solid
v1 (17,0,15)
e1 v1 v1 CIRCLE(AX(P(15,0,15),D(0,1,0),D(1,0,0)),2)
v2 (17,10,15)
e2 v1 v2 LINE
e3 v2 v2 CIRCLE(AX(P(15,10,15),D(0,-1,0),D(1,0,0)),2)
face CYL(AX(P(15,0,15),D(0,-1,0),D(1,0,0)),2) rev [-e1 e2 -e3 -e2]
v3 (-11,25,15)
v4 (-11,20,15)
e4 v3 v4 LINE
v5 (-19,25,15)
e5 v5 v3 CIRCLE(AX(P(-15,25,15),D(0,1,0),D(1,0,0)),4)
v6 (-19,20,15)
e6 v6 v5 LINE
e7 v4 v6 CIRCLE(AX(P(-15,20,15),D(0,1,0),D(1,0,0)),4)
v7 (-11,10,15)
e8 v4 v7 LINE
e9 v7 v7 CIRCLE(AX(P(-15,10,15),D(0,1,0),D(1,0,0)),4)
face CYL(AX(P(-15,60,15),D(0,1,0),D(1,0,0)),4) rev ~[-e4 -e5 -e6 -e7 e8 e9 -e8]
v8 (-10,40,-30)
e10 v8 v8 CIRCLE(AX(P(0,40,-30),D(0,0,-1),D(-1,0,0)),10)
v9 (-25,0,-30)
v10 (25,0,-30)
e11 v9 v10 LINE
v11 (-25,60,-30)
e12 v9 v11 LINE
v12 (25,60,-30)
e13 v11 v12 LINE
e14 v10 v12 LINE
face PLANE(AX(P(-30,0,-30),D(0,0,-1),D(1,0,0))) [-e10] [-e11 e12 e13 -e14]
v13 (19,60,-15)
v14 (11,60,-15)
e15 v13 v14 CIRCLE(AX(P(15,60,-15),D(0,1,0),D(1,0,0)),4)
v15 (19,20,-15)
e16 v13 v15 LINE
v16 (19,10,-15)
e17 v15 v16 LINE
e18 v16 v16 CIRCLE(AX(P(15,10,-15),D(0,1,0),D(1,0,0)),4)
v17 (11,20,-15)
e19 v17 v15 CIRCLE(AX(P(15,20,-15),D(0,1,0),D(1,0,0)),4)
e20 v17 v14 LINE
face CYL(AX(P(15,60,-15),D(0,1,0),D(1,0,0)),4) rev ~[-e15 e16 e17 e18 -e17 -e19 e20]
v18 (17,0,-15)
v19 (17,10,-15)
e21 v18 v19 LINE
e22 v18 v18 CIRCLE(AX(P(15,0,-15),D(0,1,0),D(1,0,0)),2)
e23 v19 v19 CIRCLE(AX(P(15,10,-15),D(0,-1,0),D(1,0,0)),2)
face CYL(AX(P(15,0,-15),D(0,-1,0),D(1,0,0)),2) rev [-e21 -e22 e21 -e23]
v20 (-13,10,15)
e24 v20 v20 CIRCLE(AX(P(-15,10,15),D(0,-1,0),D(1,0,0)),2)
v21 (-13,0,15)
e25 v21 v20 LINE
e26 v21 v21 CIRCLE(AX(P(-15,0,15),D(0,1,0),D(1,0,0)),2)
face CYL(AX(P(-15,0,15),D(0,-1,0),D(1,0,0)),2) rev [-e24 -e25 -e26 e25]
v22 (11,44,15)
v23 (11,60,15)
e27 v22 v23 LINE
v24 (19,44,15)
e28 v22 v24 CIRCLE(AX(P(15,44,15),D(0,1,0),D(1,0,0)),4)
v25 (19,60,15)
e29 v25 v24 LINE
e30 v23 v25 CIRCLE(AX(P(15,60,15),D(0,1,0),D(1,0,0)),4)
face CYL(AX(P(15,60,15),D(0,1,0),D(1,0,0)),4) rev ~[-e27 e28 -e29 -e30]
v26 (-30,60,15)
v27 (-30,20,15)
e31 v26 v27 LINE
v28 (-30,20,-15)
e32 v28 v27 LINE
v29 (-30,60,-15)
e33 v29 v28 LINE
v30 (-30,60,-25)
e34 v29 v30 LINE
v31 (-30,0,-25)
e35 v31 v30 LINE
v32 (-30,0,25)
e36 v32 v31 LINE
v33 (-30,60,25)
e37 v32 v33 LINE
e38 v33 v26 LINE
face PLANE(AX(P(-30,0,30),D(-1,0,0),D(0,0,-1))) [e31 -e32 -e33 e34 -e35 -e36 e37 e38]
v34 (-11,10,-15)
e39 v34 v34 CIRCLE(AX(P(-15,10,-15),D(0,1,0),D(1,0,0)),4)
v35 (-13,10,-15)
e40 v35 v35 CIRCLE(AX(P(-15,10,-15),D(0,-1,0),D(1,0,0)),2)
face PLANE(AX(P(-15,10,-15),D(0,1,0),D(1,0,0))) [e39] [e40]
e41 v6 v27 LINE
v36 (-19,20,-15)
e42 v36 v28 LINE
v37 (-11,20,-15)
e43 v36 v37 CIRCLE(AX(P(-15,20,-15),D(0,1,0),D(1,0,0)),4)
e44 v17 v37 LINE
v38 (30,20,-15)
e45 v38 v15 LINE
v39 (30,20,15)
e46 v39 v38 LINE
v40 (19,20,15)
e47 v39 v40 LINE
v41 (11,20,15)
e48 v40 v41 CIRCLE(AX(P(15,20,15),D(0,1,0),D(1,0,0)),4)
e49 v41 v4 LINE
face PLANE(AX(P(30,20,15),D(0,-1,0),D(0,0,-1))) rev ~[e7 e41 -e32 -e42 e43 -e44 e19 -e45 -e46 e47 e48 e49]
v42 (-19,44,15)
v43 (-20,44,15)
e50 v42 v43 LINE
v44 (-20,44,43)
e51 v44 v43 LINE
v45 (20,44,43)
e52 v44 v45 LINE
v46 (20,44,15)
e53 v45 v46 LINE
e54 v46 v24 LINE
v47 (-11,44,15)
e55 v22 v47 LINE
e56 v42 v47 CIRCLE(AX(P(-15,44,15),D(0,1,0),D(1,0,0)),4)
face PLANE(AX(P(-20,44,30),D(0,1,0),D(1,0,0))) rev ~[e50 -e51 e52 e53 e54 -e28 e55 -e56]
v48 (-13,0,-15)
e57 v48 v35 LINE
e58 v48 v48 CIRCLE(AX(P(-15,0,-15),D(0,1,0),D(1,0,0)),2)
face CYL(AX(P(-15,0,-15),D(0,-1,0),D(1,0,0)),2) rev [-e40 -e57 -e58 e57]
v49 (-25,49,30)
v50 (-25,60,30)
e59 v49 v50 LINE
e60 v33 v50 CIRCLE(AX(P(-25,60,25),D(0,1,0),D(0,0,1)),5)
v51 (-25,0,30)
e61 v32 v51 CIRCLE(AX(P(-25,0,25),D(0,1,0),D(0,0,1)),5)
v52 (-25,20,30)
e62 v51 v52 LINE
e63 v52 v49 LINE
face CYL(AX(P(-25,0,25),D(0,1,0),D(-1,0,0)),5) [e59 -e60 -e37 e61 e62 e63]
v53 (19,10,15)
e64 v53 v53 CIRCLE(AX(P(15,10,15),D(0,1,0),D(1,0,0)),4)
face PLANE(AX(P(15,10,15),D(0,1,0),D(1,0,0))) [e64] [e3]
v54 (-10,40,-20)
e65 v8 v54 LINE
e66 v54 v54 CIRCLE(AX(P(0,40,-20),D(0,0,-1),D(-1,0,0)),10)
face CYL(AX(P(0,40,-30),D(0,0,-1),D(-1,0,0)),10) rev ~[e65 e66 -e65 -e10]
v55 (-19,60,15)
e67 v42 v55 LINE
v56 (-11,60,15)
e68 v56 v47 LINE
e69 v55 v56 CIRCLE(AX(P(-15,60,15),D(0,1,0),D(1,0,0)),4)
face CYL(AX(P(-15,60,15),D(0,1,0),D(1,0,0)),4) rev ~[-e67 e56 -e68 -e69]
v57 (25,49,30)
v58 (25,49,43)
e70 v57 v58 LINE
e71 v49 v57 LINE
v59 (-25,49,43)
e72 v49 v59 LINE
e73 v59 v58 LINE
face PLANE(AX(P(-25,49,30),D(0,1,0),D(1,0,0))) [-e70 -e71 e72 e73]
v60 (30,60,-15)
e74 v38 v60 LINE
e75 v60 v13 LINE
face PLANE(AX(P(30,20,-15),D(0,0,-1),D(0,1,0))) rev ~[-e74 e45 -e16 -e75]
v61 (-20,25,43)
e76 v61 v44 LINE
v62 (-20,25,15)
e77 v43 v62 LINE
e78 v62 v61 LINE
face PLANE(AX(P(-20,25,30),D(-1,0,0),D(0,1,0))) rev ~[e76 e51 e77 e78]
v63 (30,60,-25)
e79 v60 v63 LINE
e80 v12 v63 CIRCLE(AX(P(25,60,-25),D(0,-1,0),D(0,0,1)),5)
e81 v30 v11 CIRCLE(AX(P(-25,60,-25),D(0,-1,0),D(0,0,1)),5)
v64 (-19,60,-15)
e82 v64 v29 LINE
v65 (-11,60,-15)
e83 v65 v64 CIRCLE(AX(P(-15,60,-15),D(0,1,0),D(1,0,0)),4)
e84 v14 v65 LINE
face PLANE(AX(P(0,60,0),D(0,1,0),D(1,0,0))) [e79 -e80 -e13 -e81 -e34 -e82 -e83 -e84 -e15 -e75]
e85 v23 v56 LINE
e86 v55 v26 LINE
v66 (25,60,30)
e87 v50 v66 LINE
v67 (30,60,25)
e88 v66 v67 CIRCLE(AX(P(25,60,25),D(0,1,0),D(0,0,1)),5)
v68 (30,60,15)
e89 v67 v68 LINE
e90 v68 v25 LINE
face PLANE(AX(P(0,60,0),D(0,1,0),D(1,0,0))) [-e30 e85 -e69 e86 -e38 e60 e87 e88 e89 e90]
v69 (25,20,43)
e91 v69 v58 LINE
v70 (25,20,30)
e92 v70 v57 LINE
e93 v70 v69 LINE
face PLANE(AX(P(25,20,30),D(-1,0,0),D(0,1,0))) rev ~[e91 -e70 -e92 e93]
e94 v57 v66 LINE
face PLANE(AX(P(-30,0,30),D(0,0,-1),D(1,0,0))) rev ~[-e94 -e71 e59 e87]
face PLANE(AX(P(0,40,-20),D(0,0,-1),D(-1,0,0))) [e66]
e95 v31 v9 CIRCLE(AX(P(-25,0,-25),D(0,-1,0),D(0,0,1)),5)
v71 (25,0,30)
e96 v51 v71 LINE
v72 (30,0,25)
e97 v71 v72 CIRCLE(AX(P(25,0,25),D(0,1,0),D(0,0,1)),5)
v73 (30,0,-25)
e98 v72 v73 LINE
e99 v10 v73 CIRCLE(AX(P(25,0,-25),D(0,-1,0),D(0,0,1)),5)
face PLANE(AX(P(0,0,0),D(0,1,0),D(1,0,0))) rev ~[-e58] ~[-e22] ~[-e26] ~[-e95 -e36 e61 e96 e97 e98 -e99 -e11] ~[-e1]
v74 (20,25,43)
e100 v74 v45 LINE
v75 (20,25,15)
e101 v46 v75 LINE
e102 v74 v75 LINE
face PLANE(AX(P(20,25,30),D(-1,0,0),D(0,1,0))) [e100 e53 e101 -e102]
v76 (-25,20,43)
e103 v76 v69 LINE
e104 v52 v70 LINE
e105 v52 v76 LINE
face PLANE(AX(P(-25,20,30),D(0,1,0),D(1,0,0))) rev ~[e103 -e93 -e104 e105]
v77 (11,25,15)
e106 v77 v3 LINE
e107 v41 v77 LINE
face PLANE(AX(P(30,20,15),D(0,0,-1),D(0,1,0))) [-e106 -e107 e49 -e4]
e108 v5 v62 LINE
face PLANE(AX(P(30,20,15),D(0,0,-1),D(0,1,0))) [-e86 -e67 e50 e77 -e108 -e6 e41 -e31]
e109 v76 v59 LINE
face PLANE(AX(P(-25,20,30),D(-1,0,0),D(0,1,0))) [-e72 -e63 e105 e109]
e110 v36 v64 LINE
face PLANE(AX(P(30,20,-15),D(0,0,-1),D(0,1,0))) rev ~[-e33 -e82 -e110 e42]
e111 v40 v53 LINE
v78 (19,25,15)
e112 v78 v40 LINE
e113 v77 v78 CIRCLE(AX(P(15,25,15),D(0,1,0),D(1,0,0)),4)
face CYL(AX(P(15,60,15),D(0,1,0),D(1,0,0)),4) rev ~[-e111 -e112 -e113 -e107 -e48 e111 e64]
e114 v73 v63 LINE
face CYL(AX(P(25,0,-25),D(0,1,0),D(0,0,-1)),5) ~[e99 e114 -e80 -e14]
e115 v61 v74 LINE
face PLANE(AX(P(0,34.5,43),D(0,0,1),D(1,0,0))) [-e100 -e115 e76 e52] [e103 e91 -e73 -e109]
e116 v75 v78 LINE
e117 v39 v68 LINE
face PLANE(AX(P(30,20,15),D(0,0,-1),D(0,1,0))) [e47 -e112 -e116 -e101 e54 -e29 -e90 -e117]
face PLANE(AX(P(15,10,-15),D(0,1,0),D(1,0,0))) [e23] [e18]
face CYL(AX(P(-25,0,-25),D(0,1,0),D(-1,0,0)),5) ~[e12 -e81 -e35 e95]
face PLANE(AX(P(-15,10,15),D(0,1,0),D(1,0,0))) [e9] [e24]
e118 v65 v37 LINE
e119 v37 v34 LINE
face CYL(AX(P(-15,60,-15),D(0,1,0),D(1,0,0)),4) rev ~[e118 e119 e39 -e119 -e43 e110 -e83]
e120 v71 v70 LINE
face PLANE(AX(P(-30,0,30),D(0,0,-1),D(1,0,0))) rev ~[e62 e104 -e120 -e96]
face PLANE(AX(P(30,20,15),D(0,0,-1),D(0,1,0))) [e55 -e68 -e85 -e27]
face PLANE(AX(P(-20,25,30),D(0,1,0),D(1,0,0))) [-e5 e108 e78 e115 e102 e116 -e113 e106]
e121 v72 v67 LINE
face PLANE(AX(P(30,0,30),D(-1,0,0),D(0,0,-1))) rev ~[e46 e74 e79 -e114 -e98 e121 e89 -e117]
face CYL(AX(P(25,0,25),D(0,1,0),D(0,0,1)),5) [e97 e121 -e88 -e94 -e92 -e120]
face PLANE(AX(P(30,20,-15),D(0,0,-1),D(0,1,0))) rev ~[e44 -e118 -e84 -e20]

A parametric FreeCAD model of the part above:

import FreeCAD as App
import Part
import Sketcher

V = App.Vector
Q = App.Units.Quantity


def edges_at(feature, points):
    """Names of the edges that pass closest to the given points."""
    edges = feature.Shape.Edges
    near = lambda p: min(range(len(edges)), key=lambda i: edges[i].distToShape(Part.Vertex(*p))[0])
    return sorted({f"Edge{near(p) + 1}" for p in points})

doc = App.newDocument("Part")
body = doc.addObject("PartDesign::Body", "Body")

# Sketch on XZ plane
sketch1 = body.newObject("Sketcher::SketchObject", "Sketch")
sketch1.AttachmentSupport = (doc.getObject("XZ_Plane"), [""])
sketch1.MapMode = "FlatFace"
sketch1.addGeometry([
    Part.LineSegment(V(-30, -30, 0), V(-30, 30, 0)),  # 0
    Part.LineSegment(V(-30, 30, 0), V(30, 30, 0)),  # 1
    Part.LineSegment(V(30, 30, 0), V(30, -30, 0)),  # 2
    Part.LineSegment(V(30, -30, 0), V(-30, -30, 0)),  # 3
    Part.Circle(V(-15, 15, 0), V(0, 0, 1), 2),  # 4
    Part.Circle(V(15, 15, 0), V(0, 0, 1), 2),  # 5
    Part.Circle(V(-15, -15, 0), V(0, 0, 1), 2),  # 6
    Part.Circle(V(15, -15, 0), V(0, 0, 1), 2),  # 7
], False)
sketch1.addConstraint([
    Sketcher.Constraint("Coincident", 0, 2, 1, 1),
    Sketcher.Constraint("Coincident", 1, 2, 2, 1),
    Sketcher.Constraint("Coincident", 2, 2, 3, 1),
    Sketcher.Constraint("Coincident", 3, 2, 0, 1),
    Sketcher.Constraint("Vertical", 0),
    Sketcher.Constraint("Horizontal", 1),
    Sketcher.Constraint("Vertical", 2),
    Sketcher.Constraint("Horizontal", 3),
    Sketcher.Constraint("Equal", 4, 5),
    Sketcher.Constraint("Equal", 5, 6),
    Sketcher.Constraint("Equal", 6, 7),
    Sketcher.Constraint("Symmetric", 5, 3, 6, 3, -1, 1),
    Sketcher.Constraint("Symmetric", 4, 3, 7, 3, -1, 1),
    Sketcher.Constraint("Symmetric", 0, 2, 2, 2, -1, 1),
    Sketcher.Constraint("Symmetric", 4, 3, 5, 3, -2),
    Sketcher.Constraint("Equal", 3, 0),
    Sketcher.Constraint("Diameter", 4, Q("4 mm")),
    Sketcher.Constraint("DistanceX", 1, 1, 1, 2, Q("60 mm")),
    Sketcher.Constraint("DistanceX", 4, 3, -1, 1, Q("15 mm")),
    Sketcher.Constraint("DistanceY", -1, 1, 4, 3, Q("15 mm")),
])
pad1 = body.newObject("PartDesign::Pad", "Pad")
pad1.Profile = sketch1
pad1.Length = 60
pad1.Reversed = True

# Sketch on XZ plane
sketch2 = body.newObject("Sketcher::SketchObject", "Sketch001")
sketch2.AttachmentSupport = (doc.getObject("XZ_Plane"), [""])
sketch2.MapMode = "FlatFace"
sketch2.AttachmentOffset = App.Placement(V(0, 0, -60), App.Rotation())
sketch2.addGeometry([
    Part.Circle(V(-15, -15, 0), V(0, 0, 1), 4),
    Part.Circle(V(15, -15, 0), V(0, 0, 1), 4),
    Part.Circle(V(15, 15, 0), V(0, 0, 1), 4),
    Part.Circle(V(-15, 15, 0), V(0, 0, 1), 4),
], False)
sketch2.addConstraint([
    Sketcher.Constraint("Equal", 0, 1),
    Sketcher.Constraint("Equal", 1, 2),
    Sketcher.Constraint("Equal", 2, 3),
    Sketcher.Constraint("Symmetric", 0, 3, 2, 3, -1, 1),
    Sketcher.Constraint("Symmetric", 1, 3, 3, 3, -1, 1),
    Sketcher.Constraint("Symmetric", 0, 3, 1, 3, -2),
    Sketcher.Constraint("Diameter", 0, Q("8 mm")),
    Sketcher.Constraint("DistanceX", 0, 3, -1, 1, Q("15 mm")),
    Sketcher.Constraint("DistanceY", 0, 3, -1, 1, Q("15 mm")),
])
pocket1 = body.newObject("PartDesign::Pocket", "Pocket")
pocket1.Profile = sketch2
pocket1.Length = 50
pocket1.Reversed = True
doc.recompute()

fillet = body.newObject("PartDesign::Fillet", "Fillet")
fillet.Base = (pocket1, edges_at(pocket1, [
    (30, 30, 30),
    (-30, 30, 30),
    (-30, 30, -30),
    (30, 30, -30),
]))
fillet.Radius = 5

# Sketch on YZ plane
sketch3 = body.newObject("Sketcher::SketchObject", "Sketch002")
sketch3.AttachmentSupport = (doc.getObject("YZ_Plane"), [""])
sketch3.MapMode = "FlatFace"
sketch3.AttachmentOffset = App.Placement(V(0, 0, 30), App.Rotation())
sketch3.addGeometry([
    Part.LineSegment(V(60, 15, 0), V(20, 15, 0)),
    Part.LineSegment(V(20, 15, 0), V(20, -15, 0)),
    Part.LineSegment(V(20, -15, 0), V(60, -15, 0)),
    Part.LineSegment(V(60, -15, 0), V(60, 15, 0)),
], False)
sketch3.addConstraint([
    Sketcher.Constraint("Coincident", 0, 2, 1, 1),
    Sketcher.Constraint("Coincident", 1, 2, 2, 1),
    Sketcher.Constraint("Coincident", 2, 2, 3, 1),
    Sketcher.Constraint("Coincident", 3, 2, 0, 1),
    Sketcher.Constraint("Horizontal", 0),
    Sketcher.Constraint("Vertical", 1),
    Sketcher.Constraint("Horizontal", 2),
    Sketcher.Constraint("Vertical", 3),
    Sketcher.Constraint("DistanceX", 0, 2, 0, 1, Q("40 mm")),
    Sketcher.Constraint("DistanceY", 1, 2, 1, 1, Q("30 mm")),
    Sketcher.Constraint("DistanceX", -1, 1, 0, 2, Q("20 mm")),
    Sketcher.Constraint("DistanceY", -1, 1, 0, 2, Q("15 mm")),
])
pocket2 = body.newObject("PartDesign::Pocket", "Pocket001")
pocket2.Profile = sketch3
pocket2.Type = "ThroughAll"

# Sketch on XY plane
sketch4 = body.newObject("Sketcher::SketchObject", "Sketch003")
sketch4.AttachmentSupport = (doc.getObject("XY_Plane"), [""])
sketch4.MapMode = "FlatFace"
sketch4.AttachmentOffset = App.Placement(V(0, 0, 30), App.Rotation())
sketch4.addGeometry([
    Part.LineSegment(V(-20, 44, 0), V(-20, 25, 0)),
    Part.LineSegment(V(-20, 25, 0), V(20, 25, 0)),
    Part.LineSegment(V(20, 25, 0), V(20, 44, 0)),
    Part.LineSegment(V(20, 44, 0), V(-20, 44, 0)),
], False)
sketch4.addConstraint([
    Sketcher.Constraint("Coincident", 0, 2, 1, 1),
    Sketcher.Constraint("Coincident", 1, 2, 2, 1),
    Sketcher.Constraint("Coincident", 2, 2, 3, 1),
    Sketcher.Constraint("Coincident", 3, 2, 0, 1),
    Sketcher.Constraint("Vertical", 0),
    Sketcher.Constraint("Horizontal", 1),
    Sketcher.Constraint("Vertical", 2),
    Sketcher.Constraint("Horizontal", 3),
    Sketcher.Constraint("DistanceX", 1, 1, 1, 2, Q("40 mm")),
    Sketcher.Constraint("DistanceY", 0, 2, 0, 1, Q("19 mm")),
    Sketcher.Constraint("DistanceX", 0, 2, -1, 1, Q("20 mm")),
    Sketcher.Constraint("DistanceY", -1, 1, 0, 2, Q("25 mm")),
])
pocket3 = body.newObject("PartDesign::Pocket", "Pocket002")
pocket3.Profile = sketch4
pocket3.Length = 30

# Sketch on XY plane
sketch5 = body.newObject("Sketcher::SketchObject", "Sketch004")
sketch5.AttachmentSupport = (doc.getObject("XY_Plane"), [""])
sketch5.MapMode = "FlatFace"
sketch5.AttachmentOffset = App.Placement(V(0, 0, 30), App.Rotation())
sketch5.addGeometry([
    Part.LineSegment(V(-25, 49, 0), V(-25, 20, 0)),  # 0
    Part.LineSegment(V(-25, 20, 0), V(25, 20, 0)),  # 1
    Part.LineSegment(V(25, 20, 0), V(25, 49, 0)),  # 2
    Part.LineSegment(V(25, 49, 0), V(-25, 49, 0)),  # 3
    Part.LineSegment(V(20, 25, 0), V(-20, 25, 0)),  # 4
    Part.LineSegment(V(-20, 25, 0), V(-20, 44, 0)),  # 5
    Part.LineSegment(V(-20, 44, 0), V(20, 44, 0)),  # 6
    Part.LineSegment(V(20, 44, 0), V(20, 25, 0)),  # 7
], False)
sketch5.addConstraint([
    Sketcher.Constraint("Coincident", 0, 2, 1, 1),
    Sketcher.Constraint("Coincident", 1, 2, 2, 1),
    Sketcher.Constraint("Coincident", 2, 2, 3, 1),
    Sketcher.Constraint("Coincident", 3, 2, 0, 1),
    Sketcher.Constraint("Coincident", 4, 2, 5, 1),
    Sketcher.Constraint("Coincident", 5, 2, 6, 1),
    Sketcher.Constraint("Coincident", 6, 2, 7, 1),
    Sketcher.Constraint("Coincident", 7, 2, 4, 1),
    Sketcher.Constraint("Vertical", 0),
    Sketcher.Constraint("Horizontal", 1),
    Sketcher.Constraint("Vertical", 2),
    Sketcher.Constraint("Horizontal", 3),
    Sketcher.Constraint("Horizontal", 4),
    Sketcher.Constraint("Vertical", 5),
    Sketcher.Constraint("Horizontal", 6),
    Sketcher.Constraint("Vertical", 7),
    Sketcher.Constraint("DistanceX", 1, 1, 1, 2, Q("50 mm")),
    Sketcher.Constraint("DistanceX", 4, 2, 4, 1, Q("40 mm")),
    Sketcher.Constraint("DistanceY", 0, 2, 0, 1, Q("29 mm")),
    Sketcher.Constraint("DistanceY", 5, 1, 5, 2, Q("19 mm")),
    Sketcher.Constraint("DistanceX", 0, 2, -1, 1, Q("25 mm")),
    Sketcher.Constraint("DistanceY", -1, 1, 0, 2, Q("20 mm")),
    Sketcher.Constraint("DistanceX", 4, 2, -1, 1, Q("20 mm")),
    Sketcher.Constraint("DistanceY", -1, 1, 4, 2, Q("25 mm")),
])
pad2 = body.newObject("PartDesign::Pad", "Pad001")
pad2.Profile = sketch5
pad2.Length = 13

# Sketch on XY plane
sketch6 = body.newObject("Sketcher::SketchObject", "Sketch005")
sketch6.AttachmentSupport = (doc.getObject("XY_Plane"), [""])
sketch6.MapMode = "FlatFace"
sketch6.AttachmentOffset = App.Placement(V(0, 0, -30), App.Rotation())
sketch6.addGeometry(Part.Circle(V(0, 40, 0), V(0, 0, 1), 10), False)
sketch6.addConstraint([
    Sketcher.Constraint("PointOnObject", 0, 3, -2),
    Sketcher.Constraint("Diameter", 0, Q("20 mm")),
    Sketcher.Constraint("DistanceY", -1, 1, 0, 3, Q("40 mm")),
])
pocket4 = body.newObject("PartDesign::Pocket", "Pocket003")
pocket4.Profile = sketch6
pocket4.Length = 10
pocket4.Reversed = True

doc.recompute()
